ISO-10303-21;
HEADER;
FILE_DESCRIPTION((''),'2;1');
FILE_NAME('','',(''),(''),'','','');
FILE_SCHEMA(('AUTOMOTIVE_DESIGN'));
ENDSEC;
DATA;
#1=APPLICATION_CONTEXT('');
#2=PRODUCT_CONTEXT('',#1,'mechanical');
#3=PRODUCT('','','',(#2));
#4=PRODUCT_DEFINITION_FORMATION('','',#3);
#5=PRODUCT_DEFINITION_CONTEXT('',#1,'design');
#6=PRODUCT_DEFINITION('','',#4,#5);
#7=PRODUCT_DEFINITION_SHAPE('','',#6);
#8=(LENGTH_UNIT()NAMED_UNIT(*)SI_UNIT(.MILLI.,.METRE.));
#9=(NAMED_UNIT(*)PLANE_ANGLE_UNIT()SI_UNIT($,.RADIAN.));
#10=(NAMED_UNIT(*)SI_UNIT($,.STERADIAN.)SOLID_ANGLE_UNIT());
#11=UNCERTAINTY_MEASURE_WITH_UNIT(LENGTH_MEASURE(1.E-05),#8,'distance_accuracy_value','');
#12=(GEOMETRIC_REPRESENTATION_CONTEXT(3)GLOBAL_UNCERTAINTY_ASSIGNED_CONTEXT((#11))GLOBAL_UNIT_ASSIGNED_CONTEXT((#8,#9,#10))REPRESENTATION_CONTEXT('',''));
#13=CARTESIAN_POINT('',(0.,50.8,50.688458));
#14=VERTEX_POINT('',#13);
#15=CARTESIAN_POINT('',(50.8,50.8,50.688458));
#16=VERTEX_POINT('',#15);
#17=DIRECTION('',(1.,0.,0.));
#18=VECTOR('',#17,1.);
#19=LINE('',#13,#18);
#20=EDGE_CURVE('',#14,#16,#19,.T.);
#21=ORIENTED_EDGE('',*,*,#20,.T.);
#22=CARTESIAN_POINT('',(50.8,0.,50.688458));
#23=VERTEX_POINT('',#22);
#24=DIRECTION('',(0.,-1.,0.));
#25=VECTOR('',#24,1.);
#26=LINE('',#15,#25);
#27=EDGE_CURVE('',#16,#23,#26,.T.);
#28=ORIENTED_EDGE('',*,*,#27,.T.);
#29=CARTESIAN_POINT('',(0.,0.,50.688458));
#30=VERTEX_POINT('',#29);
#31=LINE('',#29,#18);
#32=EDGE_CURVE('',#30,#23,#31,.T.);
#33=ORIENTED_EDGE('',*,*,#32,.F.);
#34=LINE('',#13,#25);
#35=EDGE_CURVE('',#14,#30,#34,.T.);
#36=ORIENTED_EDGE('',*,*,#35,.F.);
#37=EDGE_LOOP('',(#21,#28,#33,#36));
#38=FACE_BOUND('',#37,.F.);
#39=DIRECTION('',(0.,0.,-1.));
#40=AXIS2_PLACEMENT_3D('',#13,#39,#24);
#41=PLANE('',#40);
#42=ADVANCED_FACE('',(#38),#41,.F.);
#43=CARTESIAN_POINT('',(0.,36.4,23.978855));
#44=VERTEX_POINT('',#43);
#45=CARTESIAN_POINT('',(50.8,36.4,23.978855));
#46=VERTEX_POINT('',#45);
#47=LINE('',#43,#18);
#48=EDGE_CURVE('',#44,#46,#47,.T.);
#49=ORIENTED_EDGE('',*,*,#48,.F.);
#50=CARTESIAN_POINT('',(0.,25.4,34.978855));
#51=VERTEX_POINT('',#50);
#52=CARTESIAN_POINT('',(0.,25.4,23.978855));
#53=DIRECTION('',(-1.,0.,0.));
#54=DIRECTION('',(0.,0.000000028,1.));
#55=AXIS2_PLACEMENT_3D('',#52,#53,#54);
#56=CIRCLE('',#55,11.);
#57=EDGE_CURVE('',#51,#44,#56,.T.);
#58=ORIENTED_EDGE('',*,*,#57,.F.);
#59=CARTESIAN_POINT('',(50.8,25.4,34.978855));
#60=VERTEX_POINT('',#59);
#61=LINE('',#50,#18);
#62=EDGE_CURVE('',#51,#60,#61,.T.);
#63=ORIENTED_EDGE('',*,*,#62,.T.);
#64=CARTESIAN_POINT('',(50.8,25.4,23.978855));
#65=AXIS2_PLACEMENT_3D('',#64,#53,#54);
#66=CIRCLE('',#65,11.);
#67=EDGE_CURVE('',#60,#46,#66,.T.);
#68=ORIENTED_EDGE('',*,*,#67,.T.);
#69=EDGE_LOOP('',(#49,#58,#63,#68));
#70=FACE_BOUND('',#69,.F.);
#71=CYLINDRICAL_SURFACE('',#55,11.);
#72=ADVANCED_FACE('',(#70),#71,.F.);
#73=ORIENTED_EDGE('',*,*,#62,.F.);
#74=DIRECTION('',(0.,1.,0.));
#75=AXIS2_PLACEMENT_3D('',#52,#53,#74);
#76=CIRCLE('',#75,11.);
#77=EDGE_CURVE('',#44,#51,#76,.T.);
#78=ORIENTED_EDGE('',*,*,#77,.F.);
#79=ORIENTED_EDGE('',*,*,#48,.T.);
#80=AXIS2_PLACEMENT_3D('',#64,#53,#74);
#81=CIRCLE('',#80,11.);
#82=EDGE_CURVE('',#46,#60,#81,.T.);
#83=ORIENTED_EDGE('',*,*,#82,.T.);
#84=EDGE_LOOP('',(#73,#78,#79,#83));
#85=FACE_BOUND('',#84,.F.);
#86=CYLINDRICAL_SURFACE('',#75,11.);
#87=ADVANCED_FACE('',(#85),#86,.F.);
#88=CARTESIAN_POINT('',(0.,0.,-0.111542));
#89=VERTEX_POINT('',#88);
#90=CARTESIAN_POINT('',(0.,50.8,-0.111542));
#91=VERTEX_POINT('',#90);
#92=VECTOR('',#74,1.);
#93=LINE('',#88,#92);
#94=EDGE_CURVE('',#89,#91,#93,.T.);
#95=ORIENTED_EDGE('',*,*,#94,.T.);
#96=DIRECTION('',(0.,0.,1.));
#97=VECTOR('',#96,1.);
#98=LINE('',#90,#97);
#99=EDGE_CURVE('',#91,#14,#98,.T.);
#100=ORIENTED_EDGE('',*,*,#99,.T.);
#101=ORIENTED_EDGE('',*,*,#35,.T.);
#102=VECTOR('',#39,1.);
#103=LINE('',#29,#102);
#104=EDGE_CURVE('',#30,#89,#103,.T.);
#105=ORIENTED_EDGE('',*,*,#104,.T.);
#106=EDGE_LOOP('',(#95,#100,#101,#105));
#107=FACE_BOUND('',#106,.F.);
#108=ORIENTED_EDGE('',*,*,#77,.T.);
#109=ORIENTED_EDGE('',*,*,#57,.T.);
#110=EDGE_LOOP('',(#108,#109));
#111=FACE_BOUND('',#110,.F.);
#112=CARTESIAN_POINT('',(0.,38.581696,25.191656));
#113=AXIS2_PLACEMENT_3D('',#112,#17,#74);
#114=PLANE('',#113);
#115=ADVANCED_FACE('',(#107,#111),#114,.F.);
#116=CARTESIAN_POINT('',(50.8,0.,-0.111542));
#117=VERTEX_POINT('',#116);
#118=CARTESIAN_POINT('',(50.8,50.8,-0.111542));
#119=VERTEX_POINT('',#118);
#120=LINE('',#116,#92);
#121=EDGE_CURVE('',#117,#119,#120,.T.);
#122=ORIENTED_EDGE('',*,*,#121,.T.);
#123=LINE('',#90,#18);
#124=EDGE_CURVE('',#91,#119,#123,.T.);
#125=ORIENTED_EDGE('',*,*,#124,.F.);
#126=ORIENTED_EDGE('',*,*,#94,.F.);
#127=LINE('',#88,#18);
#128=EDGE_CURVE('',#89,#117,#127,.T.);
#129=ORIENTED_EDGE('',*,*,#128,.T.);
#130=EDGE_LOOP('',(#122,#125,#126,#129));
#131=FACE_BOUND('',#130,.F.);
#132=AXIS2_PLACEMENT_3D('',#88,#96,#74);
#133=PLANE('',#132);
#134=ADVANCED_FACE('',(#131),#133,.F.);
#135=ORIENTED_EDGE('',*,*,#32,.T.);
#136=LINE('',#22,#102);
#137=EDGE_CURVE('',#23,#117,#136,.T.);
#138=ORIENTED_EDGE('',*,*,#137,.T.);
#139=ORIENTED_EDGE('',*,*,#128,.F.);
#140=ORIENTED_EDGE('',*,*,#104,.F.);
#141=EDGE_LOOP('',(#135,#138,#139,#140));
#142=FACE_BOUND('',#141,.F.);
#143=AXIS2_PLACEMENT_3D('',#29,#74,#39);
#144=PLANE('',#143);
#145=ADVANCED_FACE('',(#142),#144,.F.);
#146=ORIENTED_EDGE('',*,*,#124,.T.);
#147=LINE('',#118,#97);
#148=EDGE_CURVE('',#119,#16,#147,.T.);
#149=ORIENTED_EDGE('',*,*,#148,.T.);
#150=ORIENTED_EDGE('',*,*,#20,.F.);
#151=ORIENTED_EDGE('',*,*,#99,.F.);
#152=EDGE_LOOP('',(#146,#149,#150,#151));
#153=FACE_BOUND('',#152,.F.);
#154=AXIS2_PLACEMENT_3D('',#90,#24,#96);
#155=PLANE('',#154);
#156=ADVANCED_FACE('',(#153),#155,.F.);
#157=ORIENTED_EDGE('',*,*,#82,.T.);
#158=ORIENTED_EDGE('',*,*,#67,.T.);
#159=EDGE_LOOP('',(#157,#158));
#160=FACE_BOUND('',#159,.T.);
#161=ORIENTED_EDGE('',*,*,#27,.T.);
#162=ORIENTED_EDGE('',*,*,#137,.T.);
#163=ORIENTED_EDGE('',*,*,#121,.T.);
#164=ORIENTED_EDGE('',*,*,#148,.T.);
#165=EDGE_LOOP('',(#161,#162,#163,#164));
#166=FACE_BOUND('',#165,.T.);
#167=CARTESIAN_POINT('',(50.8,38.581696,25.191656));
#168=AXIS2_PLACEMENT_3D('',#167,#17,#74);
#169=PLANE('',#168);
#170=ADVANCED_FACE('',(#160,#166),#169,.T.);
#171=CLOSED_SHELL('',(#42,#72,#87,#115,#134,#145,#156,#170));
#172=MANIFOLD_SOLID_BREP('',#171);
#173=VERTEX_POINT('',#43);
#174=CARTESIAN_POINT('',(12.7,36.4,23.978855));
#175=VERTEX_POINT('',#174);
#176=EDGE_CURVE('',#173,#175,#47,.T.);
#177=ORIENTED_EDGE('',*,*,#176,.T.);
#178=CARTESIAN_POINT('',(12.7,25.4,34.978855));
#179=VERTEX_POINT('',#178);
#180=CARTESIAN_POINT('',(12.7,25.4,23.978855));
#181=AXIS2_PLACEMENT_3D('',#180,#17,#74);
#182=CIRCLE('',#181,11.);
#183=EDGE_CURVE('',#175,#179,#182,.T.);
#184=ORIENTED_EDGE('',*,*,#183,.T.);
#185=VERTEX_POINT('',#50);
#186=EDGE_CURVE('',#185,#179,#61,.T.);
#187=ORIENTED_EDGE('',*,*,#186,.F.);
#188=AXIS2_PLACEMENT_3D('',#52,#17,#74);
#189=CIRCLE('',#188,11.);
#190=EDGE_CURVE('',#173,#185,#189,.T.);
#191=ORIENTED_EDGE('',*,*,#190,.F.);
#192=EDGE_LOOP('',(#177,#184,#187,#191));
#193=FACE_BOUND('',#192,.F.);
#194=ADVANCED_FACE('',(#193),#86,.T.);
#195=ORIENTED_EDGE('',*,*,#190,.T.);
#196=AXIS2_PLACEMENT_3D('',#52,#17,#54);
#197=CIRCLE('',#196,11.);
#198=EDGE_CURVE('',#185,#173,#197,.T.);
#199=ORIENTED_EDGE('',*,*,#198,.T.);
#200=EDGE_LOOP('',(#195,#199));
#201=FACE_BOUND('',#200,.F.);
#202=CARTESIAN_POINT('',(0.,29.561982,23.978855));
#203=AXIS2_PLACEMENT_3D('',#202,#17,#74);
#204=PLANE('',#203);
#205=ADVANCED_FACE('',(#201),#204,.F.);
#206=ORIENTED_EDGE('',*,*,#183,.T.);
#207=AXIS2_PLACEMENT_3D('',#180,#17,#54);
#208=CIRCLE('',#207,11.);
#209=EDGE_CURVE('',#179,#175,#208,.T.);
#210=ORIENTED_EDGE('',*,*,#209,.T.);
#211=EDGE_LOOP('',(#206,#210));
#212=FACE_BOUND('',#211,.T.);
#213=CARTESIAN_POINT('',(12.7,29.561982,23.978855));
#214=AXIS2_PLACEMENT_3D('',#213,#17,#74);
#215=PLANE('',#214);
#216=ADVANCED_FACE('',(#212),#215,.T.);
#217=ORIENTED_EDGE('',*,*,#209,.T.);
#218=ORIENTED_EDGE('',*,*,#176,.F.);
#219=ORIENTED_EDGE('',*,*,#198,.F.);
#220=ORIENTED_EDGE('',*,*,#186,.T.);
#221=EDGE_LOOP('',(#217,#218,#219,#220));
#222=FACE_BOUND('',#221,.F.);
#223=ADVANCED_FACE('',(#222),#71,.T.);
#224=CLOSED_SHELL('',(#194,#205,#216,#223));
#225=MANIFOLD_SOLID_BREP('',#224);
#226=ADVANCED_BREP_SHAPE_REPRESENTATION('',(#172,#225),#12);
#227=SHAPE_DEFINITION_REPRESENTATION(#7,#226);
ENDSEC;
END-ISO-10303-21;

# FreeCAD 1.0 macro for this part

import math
import FreeCAD as App
import Part
import Sketcher

V = App.Vector
Q = App.Units.Quantity

doc = App.newDocument("Part")
params = doc.addObject("Spreadsheet::Sheet", "Params")
for row, (alias, value) in enumerate([
    ("sketch1_width", "2 in"),
    ("pad1_length", "2 in"),
    ("pad2_length", "0.5 in"),
], start=1):
    params.set(f"A{row}", alias)
    params.set(f"B{row}", "=" + value)
    params.setAlias(f"B{row}", alias)

body = doc.addObject("PartDesign::Body", "Body")

# Sketch on YZ plane
sketch1 = doc.addObject("Sketcher::SketchObject", "Sketch")
body.addObject(sketch1)
sketch1.AttachmentSupport = (doc.YZ_Plane, [""])
sketch1.MapMode = "FlatFace"
sketch1.addGeometry(Part.LineSegment(V(50.8, 50.688458, 0), V(0, 50.688458, 0)), False)
sketch1.addGeometry(Part.LineSegment(V(0, 50.688458, 0), V(0, -0.111542, 0)), False)
sketch1.addGeometry(Part.LineSegment(V(0, -0.111542, 0), V(50.8, -0.111542, 0)), False)
sketch1.addGeometry(Part.LineSegment(V(50.8, -0.111542, 0), V(50.8, 50.688458, 0)), False)
sketch1.addGeometry(Part.ArcOfCircle(Part.Circle(V(25.4, 23.978855, 0), V(0, 0, 1), 11), math.radians(0), math.radians(89.999998)), False)
sketch1.addGeometry(Part.ArcOfCircle(Part.Circle(V(25.4, 23.978855, 0), V(0, 0, 1), 11), math.radians(89.999998), math.radians(360)), False)
sketch1.addConstraint(Sketcher.Constraint("Coincident", 0, 2, 1, 1))
sketch1.addConstraint(Sketcher.Constraint("Coincident", 1, 2, 2, 1))
sketch1.addConstraint(Sketcher.Constraint("Coincident", 2, 2, 3, 1))
sketch1.addConstraint(Sketcher.Constraint("Coincident", 3, 2, 0, 1))
sketch1.addConstraint(Sketcher.Constraint("Tangent", 4, 1, 5, 2))
sketch1.addConstraint(Sketcher.Constraint("Coincident", 5, 1, 4, 2))
sketch1.addConstraint(Sketcher.Constraint("Horizontal", 0))
sketch1.addConstraint(Sketcher.Constraint("Vertical", 1))
sketch1.addConstraint(Sketcher.Constraint("Horizontal", 2))
sketch1.addConstraint(Sketcher.Constraint("Vertical", 3))
sketch1.addConstraint(Sketcher.Constraint("PointOnObject", 0, 2, -2))
sketch1.addConstraint(Sketcher.Constraint("Horizontal", 5, 3, 4, 1))
sketch1.addConstraint(Sketcher.Constraint("Vertical", 4, 3, 5, 1))
sketch1.addConstraint(Sketcher.Constraint("Equal", 2, 1))
sketch1.addConstraint(Sketcher.Constraint("DistanceX", 0, 2, 0, 1, Q("2 in")))
sketch1.addConstraint(Sketcher.Constraint("DistanceX", -1, 1, 4, 3, Q("1 in")))
sketch1.addConstraint(Sketcher.Constraint("Radius", 4, 11.0))
sketch1.addConstraint(Sketcher.Constraint("DistanceY", -1, 1, 4, 3, 23.978855))
sketch1.addConstraint(Sketcher.Constraint("DistanceY", -1, 1, 0, 2, 50.688458))
sketch1.setExpression("Constraints[14]", "Params.sketch1_width")
pad1 = doc.addObject("PartDesign::Pad", "Pad")
body.addObject(pad1)
pad1.Profile = sketch1
pad1.setExpression("Length", "Params.pad1_length")
body2 = doc.addObject("PartDesign::Body", "Body001")

# Sketch on YZ plane
sketch2 = doc.addObject("Sketcher::SketchObject", "Sketch001")
body2.addObject(sketch2)
sketch2.AttachmentSupport = (doc.getObject("YZ_Plane001"), [""])
sketch2.MapMode = "FlatFace"
sketch2.addGeometry(Part.ArcOfCircle(Part.Circle(V(25.4, 23.978855, 0), V(0, 0, 1), 11), math.radians(0), math.radians(89.999998)), False)
sketch2.addGeometry(Part.ArcOfCircle(Part.Circle(V(25.4, 23.978855, 0), V(0, 0, 1), 11), math.radians(89.999998), math.radians(360)), False)
sketch2.addConstraint(Sketcher.Constraint("Tangent", 0, 1, 1, 2))
sketch2.addConstraint(Sketcher.Constraint("Coincident", 1, 1, 0, 2))
sketch2.addConstraint(Sketcher.Constraint("Horizontal", 1, 3, 0, 1))
sketch2.addConstraint(Sketcher.Constraint("Vertical", 0, 3, 1, 1))
sketch2.addConstraint(Sketcher.Constraint("DistanceX", -1, 1, 0, 3, Q("1 in")))
sketch2.addConstraint(Sketcher.Constraint("Radius", 0, 11.0))
sketch2.addConstraint(Sketcher.Constraint("DistanceY", -1, 1, 0, 3, 23.978855))
pad2 = doc.addObject("PartDesign::Pad", "Pad001")
body2.addObject(pad2)
pad2.Profile = sketch2
pad2.setExpression("Length", "Params.pad2_length")

doc.recompute()
